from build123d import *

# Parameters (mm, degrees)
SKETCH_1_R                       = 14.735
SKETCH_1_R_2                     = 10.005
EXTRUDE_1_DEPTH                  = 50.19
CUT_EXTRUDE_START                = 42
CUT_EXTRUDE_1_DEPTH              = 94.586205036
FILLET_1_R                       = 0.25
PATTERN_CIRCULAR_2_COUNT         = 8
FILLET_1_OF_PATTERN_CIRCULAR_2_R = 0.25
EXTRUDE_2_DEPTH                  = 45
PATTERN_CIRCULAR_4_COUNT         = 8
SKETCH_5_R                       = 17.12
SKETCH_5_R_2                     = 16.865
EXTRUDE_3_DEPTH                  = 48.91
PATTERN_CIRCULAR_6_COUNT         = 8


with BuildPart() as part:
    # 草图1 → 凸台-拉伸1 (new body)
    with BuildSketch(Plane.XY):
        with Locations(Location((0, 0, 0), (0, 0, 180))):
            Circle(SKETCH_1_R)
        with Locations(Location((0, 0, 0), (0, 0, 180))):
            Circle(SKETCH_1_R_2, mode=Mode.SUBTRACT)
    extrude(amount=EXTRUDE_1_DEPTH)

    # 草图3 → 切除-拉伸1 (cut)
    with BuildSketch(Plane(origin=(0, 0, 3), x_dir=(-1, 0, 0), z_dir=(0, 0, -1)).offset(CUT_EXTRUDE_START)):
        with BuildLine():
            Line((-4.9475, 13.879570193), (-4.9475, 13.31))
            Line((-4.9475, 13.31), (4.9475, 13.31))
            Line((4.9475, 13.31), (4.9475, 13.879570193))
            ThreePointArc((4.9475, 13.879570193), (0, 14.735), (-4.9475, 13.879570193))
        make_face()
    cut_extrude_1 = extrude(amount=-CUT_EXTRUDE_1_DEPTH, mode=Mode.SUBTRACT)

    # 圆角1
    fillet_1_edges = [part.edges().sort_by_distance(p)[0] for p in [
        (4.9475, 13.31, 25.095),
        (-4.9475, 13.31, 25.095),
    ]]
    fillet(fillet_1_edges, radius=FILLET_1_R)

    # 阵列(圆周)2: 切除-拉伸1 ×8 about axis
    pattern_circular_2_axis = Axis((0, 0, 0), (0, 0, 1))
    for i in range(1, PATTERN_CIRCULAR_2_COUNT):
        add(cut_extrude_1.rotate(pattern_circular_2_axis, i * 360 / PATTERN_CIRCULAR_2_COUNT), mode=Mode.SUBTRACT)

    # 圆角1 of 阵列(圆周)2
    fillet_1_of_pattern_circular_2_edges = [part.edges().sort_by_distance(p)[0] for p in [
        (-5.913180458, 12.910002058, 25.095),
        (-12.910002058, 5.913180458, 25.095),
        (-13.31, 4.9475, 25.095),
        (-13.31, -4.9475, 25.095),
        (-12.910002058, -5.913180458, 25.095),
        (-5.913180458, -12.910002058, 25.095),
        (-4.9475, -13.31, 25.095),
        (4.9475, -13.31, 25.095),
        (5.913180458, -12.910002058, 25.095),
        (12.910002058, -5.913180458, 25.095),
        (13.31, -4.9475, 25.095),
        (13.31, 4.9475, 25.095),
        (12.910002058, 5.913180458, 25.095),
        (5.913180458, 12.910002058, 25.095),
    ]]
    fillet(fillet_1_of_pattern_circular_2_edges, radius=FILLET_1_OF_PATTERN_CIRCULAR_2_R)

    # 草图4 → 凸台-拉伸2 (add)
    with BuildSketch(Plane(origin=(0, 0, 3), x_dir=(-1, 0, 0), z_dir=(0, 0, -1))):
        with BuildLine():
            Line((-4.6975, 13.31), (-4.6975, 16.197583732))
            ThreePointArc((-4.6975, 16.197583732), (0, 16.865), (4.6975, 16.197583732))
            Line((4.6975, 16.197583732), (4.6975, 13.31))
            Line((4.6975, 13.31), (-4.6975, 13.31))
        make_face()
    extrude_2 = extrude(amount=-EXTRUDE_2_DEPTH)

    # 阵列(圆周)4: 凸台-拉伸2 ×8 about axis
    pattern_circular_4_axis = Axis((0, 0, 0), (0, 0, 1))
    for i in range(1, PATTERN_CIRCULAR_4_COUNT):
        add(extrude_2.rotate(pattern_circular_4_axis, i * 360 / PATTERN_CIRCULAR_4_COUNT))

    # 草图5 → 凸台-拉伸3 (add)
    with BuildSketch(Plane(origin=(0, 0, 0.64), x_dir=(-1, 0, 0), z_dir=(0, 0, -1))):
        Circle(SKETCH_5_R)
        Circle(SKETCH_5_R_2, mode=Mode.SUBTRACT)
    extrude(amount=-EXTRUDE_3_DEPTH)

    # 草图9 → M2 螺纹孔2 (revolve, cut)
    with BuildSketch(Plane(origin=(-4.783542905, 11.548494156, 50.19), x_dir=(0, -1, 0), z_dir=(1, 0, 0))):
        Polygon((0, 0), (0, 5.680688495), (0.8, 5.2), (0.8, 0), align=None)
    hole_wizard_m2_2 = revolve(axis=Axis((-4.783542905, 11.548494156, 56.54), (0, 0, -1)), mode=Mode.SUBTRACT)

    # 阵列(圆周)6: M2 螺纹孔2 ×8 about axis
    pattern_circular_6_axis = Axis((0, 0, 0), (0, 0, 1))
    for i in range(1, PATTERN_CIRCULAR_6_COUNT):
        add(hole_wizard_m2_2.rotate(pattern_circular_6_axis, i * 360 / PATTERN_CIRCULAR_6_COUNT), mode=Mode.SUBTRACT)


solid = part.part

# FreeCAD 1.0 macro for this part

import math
import FreeCAD as App
import Part
import Sketcher
from FreeCAD import Vector
Q = App.Units.Quantity


def edges_at(feature, points):
    """Names of the edges that pass closest to the given points."""
    edges = feature.Shape.Edges
    near = lambda p: min(range(len(edges)), key=lambda i: edges[i].distToShape(Part.Vertex(*p))[0])
    return sorted({f"Edge{near(p) + 1}" for p in points})

doc = App.newDocument("Part")
body = doc.addObject("PartDesign::Body", "Body")

# Sketch on XY plane
sketch1 = body.newObject("Sketcher::SketchObject", "Sketch")
sketch1.AttachmentSupport = (doc.getObject("XY_Plane"), [""])
sketch1.MapMode = "FlatFace"
sketch1.addGeometry([
    Part.Circle(Vector(0, 0, 0), Vector(0, 0, 1), 15),
    Part.Circle(Vector(0, 0, 0), Vector(0, 0, 1), 10),
], False)
sketch1.addConstraint([
    Sketcher.Constraint("Coincident", 0, 3, -1, 1),
    Sketcher.Constraint("Coincident", 1, 3, -1, 1),
    Sketcher.Constraint("Diameter", 0, 29.47),
    Sketcher.Constraint("Diameter", 1, 20.01),
])
pad1 = body.newObject("PartDesign::Pad", "Pad")
pad1.Profile = sketch1
pad1.Length = 50.19

# Sketch on XY plane
sketch2 = body.newObject("Sketcher::SketchObject", "Sketch001")
sketch2.AttachmentSupport = (doc.getObject("XY_Plane"), [""])
sketch2.MapMode = "FlatFace"
sketch2.AttachmentOffset = App.Placement(Vector(0, 0, -39), App.Rotation())
sketch2.addGeometry([
    Part.LineSegment(Vector(4.9, 13.9, 0), Vector(4.9, 13.3, 0)),
    Part.LineSegment(Vector(4.9, 13.3, 0), Vector(-4.9, 13.3, 0)),
    Part.LineSegment(Vector(-4.9, 13.3, 0), Vector(-4.9, 13.9, 0)),
    Part.ArcOfCircle(Part.Circle(Vector(0, 0, 0), Vector(0, 0, 1), 14.7), math.radians(70), math.radians(110)),
], False)
sketch2.addConstraint([
    Sketcher.Constraint("Coincident", 0, 2, 1, 1),
    Sketcher.Constraint("Coincident", 1, 2, 2, 1),
    Sketcher.Constraint("Coincident", 2, 2, 3, 2),
    Sketcher.Constraint("Coincident", 3, 1, 0, 1),
    Sketcher.Constraint("Vertical", 0),
    Sketcher.Constraint("Horizontal", 1),
    Sketcher.Constraint("Vertical", 2),
    Sketcher.Constraint("Coincident", 3, 3, -1, 1),
    Sketcher.Constraint("Horizontal", 2, 2, 3, 1),
    Sketcher.Constraint("Radius", 3, 14.735),
    Sketcher.Constraint("DistanceX", 1, 2, 1, 1, 9.895),
    Sketcher.Constraint("DistanceY", -1, 1, 0, 2, 13.31),
])
pocket1 = body.newObject("PartDesign::Pocket", "Pocket")
pocket1.Profile = sketch2
pocket1.Length = 94.586205
pocket1.Reversed = True
doc.recompute()

fillet = body.newObject("PartDesign::Fillet", "Fillet")
fillet.Base = (pocket1, edges_at(pocket1, [(4.947, 13.31, 25.095), (-4.947, 13.31, 25.095)]))
fillet.Radius = 0.25
doc.recompute()

polarpattern = body.newObject("PartDesign::PolarPattern", "PolarPattern")
polarpattern.Originals = [pocket1]
polarpattern.Axis = (doc.getObject("Z_Axis"), [""])
polarpattern.Angle = 360
polarpattern.Occurrences = 8
body.Tip = polarpattern
doc.recompute()

fillet2 = body.newObject("PartDesign::Fillet", "Fillet001")
fillet2.Base = (polarpattern, edges_at(polarpattern, [
    (-5.913, 12.91, 25.095),
    (-12.91, 5.913, 25.095),
    (-13.31, 4.947, 25.095),
    (-13.31, -4.947, 25.095),
    (-12.91, -5.913, 25.095),
    (-5.913, -12.91, 25.095),
    (-4.947, -13.31, 25.095),
    (4.947, -13.31, 25.095),
    (5.913, -12.91, 25.095),
    (12.91, -5.913, 25.095),
    (13.31, -4.947, 25.095),
    (13.31, 4.947, 25.095),
    (12.91, 5.913, 25.095),
    (5.913, 12.91, 25.095),
]))
fillet2.Radius = 0.25

# Sketch on XY plane
sketch3 = body.newObject("Sketcher::SketchObject", "Sketch002")
sketch3.AttachmentSupport = (doc.getObject("XY_Plane"), [""])
sketch3.MapMode = "FlatFace"
sketch3.AttachmentOffset = App.Placement(Vector(0, 0, 3), App.Rotation())
sketch3.addGeometry([
    Part.LineSegment(Vector(4.7, 16.2, 0), Vector(4.7, 13.3, 0)),
    Part.LineSegment(Vector(4.7, 13.3, 0), Vector(-4.7, 13.3, 0)),
    Part.LineSegment(Vector(-4.7, 13.3, 0), Vector(-4.7, 16.2, 0)),
    Part.ArcOfCircle(Part.Circle(Vector(0, 0, 0), Vector(0, 0, 1), 16.9), math.radians(74), math.radians(106)),
], False)
sketch3.addConstraint([
    Sketcher.Constraint("Coincident", 0, 2, 1, 1),
    Sketcher.Constraint("Coincident", 1, 2, 2, 1),
    Sketcher.Constraint("Coincident", 2, 2, 3, 2),
    Sketcher.Constraint("Coincident", 3, 1, 0, 1),
    Sketcher.Constraint("Vertical", 0),
    Sketcher.Constraint("Horizontal", 1),
    Sketcher.Constraint("Vertical", 2),
    Sketcher.Constraint("Coincident", 3, 3, -1, 1),
    Sketcher.Constraint("Horizontal", 2, 2, 3, 1),
    Sketcher.Constraint("Radius", 3, 16.865),
    Sketcher.Constraint("DistanceX", 1, 2, 1, 1, 9.395),
    Sketcher.Constraint("DistanceY", -1, 1, 0, 2, 13.31),
])
pad2 = body.newObject("PartDesign::Pad", "Pad001")
pad2.Profile = sketch3
pad2.Length = 45
doc.recompute()

polarpattern2 = body.newObject("PartDesign::PolarPattern", "PolarPattern001")
polarpattern2.Originals = [pad2]
polarpattern2.Axis = (doc.getObject("Z_Axis"), [""])
polarpattern2.Angle = 360
polarpattern2.Occurrences = 8
body.Tip = polarpattern2

# Sketch on XY plane
sketch4 = body.newObject("Sketcher::SketchObject", "Sketch003")
sketch4.AttachmentSupport = (doc.getObject("XY_Plane"), [""])
sketch4.MapMode = "FlatFace"
sketch4.AttachmentOffset = App.Placement(Vector(0, 0, 0.64), App.Rotation())
sketch4.addGeometry([
    Part.Circle(Vector(0, 0, 0), Vector(0, 0, 1), 17),
    Part.Circle(Vector(0, 0, 0), Vector(0, 0, 1), 17),
], False)
sketch4.addConstraint([
    Sketcher.Constraint("Coincident", 0, 3, -1, 1),
    Sketcher.Constraint("Coincident", 1, 3, -1, 1),
    Sketcher.Constraint("Diameter", 0, 34.24),
    Sketcher.Constraint("Diameter", 1, 33.73),
])
pad3 = body.newObject("PartDesign::Pad", "Pad002")
pad3.Profile = sketch4
pad3.Length = 48.91

# Sketch on YZ plane
sketch5 = body.newObject("Sketcher::SketchObject", "Sketch004")
sketch5.AttachmentSupport = (doc.getObject("YZ_Plane"), [""])
sketch5.MapMode = "FlatFace"
sketch5.AttachmentOffset = App.Placement(Vector(0, 0, -4.783543), App.Rotation())
sketch5.addGeometry([
    Part.LineSegment(Vector(11.5, 44.5, 0), Vector(11.5, 50.2, 0)),
    Part.LineSegment(Vector(11.5, 50.2, 0), Vector(10.7, 50.2, 0)),
    Part.LineSegment(Vector(10.7, 50.2, 0), Vector(10.7, 45, 0)),
    Part.LineSegment(Vector(10.7, 45, 0), Vector(11.5, 44.5, 0)),
], False)
sketch5.addGeometry(Part.LineSegment(Vector(11.5, 50.2, 0), Vector(11.5, 44.5, 0)), True)  # axis
sketch5.addConstraint([
    Sketcher.Constraint("Coincident", 0, 2, 1, 1),
    Sketcher.Constraint("Coincident", 1, 2, 2, 1),
    Sketcher.Constraint("Coincident", 2, 2, 3, 1),
    Sketcher.Constraint("Coincident", 3, 2, 0, 1),
    Sketcher.Constraint("Vertical", 0),
    Sketcher.Constraint("Horizontal", 1),
    Sketcher.Constraint("Vertical", 2),
    Sketcher.Constraint("Vertical", 4),
    Sketcher.Constraint("Coincident", 4, 1, 0, 2),
    Sketcher.Constraint("Equal", 0, 4),
    Sketcher.Constraint("Angle", 3, Q("-31 deg")),
    Sketcher.Constraint("DistanceX", 1, 2, 1, 1, 0.8),
    Sketcher.Constraint("DistanceY", 2, 2, 2, 1, 5.2),
    Sketcher.Constraint("DistanceY", -1, 1, 0, 2, 50.19),
    Sketcher.Constraint("DistanceX", -1, 1, 0, 2, 11.548494),
])
groove = body.newObject("PartDesign::Groove", "Groove")
groove.Profile = sketch5
groove.ReferenceAxis = (sketch5, ["Axis0"])
groove.Angle = 360
doc.recompute()

polarpattern3 = body.newObject("PartDesign::PolarPattern", "PolarPattern002")
polarpattern3.Originals = [groove]
polarpattern3.Axis = (doc.getObject("Z_Axis"), [""])
polarpattern3.Angle = 360
polarpattern3.Occurrences = 8
body.Tip = polarpattern3

doc.recompute()
